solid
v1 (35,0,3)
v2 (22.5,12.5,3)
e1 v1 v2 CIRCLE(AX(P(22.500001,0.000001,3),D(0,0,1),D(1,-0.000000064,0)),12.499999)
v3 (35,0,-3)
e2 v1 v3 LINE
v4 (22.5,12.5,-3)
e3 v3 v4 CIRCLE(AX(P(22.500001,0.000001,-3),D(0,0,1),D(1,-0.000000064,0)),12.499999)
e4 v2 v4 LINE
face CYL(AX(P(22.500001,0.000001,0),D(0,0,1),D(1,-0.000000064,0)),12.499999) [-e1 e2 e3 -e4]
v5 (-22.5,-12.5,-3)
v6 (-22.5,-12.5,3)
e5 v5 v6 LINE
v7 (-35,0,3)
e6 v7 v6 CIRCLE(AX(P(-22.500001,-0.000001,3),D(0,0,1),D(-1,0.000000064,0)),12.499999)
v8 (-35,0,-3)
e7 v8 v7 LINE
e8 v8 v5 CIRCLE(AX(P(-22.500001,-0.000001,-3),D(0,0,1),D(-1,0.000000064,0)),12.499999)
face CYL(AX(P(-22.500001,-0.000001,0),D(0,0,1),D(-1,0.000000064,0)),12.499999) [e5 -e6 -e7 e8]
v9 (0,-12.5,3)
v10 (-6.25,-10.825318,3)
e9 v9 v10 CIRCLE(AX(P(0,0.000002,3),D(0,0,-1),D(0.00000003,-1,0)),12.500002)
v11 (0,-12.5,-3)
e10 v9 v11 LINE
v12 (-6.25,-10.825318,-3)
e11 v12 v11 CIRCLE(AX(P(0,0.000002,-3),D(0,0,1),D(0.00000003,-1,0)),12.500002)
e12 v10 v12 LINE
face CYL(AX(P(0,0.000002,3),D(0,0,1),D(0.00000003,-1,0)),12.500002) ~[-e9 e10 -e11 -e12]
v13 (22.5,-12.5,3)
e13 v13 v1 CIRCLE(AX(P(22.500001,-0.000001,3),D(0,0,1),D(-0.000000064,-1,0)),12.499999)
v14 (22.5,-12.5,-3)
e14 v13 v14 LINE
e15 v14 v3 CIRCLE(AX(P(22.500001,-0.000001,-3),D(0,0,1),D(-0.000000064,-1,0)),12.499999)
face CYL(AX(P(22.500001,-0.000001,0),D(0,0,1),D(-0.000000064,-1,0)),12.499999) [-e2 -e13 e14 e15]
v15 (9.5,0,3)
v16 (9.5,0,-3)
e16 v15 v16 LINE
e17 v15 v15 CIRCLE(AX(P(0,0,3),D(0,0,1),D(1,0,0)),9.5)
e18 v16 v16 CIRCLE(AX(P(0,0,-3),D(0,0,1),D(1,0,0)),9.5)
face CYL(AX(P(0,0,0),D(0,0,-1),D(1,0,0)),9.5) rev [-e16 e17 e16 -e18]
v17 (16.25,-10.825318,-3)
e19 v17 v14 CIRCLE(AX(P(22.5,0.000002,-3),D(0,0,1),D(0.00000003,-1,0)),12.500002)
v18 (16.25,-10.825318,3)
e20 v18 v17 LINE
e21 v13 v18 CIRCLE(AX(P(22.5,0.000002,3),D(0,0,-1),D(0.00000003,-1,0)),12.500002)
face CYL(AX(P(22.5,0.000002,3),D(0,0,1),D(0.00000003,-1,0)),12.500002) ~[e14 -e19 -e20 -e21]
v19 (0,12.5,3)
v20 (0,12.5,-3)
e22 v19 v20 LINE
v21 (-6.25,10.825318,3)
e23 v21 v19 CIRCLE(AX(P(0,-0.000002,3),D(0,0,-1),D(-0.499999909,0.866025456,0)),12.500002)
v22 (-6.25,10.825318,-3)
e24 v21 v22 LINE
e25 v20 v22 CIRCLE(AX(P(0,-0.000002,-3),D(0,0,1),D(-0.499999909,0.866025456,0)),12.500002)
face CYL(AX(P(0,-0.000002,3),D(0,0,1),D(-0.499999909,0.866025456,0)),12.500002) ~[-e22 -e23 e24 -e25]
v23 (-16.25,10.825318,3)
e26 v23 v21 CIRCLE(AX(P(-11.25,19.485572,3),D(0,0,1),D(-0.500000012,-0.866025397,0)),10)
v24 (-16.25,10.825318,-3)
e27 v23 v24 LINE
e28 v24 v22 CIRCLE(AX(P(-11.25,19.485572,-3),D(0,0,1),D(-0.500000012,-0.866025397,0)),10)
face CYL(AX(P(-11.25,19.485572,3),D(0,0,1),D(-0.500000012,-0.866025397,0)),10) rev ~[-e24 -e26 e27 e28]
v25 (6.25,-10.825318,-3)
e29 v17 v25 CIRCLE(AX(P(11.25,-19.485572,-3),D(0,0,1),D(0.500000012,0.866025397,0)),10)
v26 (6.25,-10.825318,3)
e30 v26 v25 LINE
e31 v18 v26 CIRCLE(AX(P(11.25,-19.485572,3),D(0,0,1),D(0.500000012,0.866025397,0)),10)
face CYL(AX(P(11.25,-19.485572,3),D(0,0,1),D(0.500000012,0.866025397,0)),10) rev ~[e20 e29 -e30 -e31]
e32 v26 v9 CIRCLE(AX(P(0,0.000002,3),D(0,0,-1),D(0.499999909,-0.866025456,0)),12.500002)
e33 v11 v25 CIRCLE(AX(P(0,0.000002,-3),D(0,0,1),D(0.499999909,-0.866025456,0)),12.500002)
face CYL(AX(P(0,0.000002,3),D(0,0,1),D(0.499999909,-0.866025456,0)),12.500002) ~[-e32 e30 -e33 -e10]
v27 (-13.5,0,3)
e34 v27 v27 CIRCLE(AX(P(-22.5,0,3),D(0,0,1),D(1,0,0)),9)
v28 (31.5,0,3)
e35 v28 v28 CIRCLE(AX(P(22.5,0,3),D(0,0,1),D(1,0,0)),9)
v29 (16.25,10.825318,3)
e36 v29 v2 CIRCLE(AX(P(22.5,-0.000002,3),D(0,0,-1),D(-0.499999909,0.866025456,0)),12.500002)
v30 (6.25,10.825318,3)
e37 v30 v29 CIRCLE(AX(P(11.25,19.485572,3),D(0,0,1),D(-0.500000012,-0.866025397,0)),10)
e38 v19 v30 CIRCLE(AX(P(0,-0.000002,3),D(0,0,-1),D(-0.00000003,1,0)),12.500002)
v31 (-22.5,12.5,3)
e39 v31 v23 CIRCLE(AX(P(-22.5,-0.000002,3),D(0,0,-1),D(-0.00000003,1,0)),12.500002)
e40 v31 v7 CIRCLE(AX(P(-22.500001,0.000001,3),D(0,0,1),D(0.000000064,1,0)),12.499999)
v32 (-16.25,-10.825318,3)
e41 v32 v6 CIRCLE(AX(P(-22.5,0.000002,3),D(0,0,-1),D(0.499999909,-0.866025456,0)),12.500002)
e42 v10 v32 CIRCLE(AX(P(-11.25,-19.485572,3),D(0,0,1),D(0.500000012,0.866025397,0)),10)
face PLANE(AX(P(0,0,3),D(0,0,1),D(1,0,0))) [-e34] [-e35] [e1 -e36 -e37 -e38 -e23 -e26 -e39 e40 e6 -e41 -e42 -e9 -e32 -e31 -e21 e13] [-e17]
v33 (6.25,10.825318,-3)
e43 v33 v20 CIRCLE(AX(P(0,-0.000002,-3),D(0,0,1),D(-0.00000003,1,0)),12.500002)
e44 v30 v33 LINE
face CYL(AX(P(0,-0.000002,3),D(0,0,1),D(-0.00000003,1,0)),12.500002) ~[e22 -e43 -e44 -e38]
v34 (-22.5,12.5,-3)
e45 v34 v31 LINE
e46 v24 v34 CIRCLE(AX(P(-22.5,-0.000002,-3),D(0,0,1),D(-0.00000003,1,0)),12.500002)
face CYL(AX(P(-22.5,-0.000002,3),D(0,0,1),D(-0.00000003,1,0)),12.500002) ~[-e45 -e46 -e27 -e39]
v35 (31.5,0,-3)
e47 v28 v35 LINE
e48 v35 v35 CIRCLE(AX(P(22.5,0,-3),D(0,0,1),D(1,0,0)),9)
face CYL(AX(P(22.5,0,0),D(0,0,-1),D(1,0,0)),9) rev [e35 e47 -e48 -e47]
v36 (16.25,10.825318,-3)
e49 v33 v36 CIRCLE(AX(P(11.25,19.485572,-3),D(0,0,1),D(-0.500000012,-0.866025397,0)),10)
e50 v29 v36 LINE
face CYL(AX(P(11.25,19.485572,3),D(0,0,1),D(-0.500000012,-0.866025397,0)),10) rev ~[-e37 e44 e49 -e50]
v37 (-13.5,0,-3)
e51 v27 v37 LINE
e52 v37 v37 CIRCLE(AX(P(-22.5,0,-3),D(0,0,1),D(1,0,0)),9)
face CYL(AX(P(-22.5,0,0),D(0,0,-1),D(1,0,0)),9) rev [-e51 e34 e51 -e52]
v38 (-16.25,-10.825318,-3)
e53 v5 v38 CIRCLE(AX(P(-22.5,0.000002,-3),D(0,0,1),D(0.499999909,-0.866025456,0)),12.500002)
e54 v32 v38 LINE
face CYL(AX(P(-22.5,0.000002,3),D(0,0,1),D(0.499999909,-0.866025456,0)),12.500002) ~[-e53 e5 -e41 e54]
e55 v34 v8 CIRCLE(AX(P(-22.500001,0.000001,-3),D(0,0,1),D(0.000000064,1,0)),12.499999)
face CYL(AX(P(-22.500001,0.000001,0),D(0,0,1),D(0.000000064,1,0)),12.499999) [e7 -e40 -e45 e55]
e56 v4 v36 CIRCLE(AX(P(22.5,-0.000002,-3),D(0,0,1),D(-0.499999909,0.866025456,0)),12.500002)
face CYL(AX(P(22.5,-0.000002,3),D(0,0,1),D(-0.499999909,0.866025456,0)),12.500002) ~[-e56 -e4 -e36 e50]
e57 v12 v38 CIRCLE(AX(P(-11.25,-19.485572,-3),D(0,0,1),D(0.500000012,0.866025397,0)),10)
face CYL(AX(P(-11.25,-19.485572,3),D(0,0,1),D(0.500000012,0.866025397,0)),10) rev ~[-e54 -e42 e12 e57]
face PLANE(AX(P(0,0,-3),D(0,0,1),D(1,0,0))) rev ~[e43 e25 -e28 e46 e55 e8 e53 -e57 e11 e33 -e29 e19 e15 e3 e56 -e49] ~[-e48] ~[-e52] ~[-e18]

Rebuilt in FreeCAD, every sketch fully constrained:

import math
import FreeCAD as App
import Part
import Sketcher

doc = App.newDocument("Part")
body = doc.addObject("PartDesign::Body", "Body")

# Sketch on XY plane
sketch1 = doc.addObject("Sketcher::SketchObject", "Sketch")
body.addObject(sketch1)
sketch1.AttachmentSupport = (doc.XY_Plane, [""])
sketch1.MapMode = "FlatFace"
sketch1.addGeometry([
    Part.LineSegment(App.Vector(22, 12, 0), App.Vector(-22, 12, 0)),  # 0
    Part.ArcOfCircle(Part.Circle(App.Vector(-23, 0, 0), App.Vector(0, 0, 1), 12), math.radians(90), math.radians(180)),  # 1
    Part.ArcOfCircle(Part.Circle(App.Vector(-23, 0, 0), App.Vector(0, 0, 1), 12), math.radians(180), math.radians(270)),  # 2
    Part.LineSegment(App.Vector(-22, -12, 0), App.Vector(22, -12, 0)),  # 3
    Part.ArcOfCircle(Part.Circle(App.Vector(23, 0, 0), App.Vector(0, 0, 1), 12), math.radians(-90), math.radians(0)),  # 4
    Part.ArcOfCircle(Part.Circle(App.Vector(23, 0, 0), App.Vector(0, 0, 1), 12), math.radians(0), math.radians(90)),  # 5
    Part.Circle(App.Vector(-22, 0, 0), App.Vector(0, 0, 1), 9),  # 6
    Part.Circle(App.Vector(0, 0, 0), App.Vector(0, 0, 1), 10),  # 7
    Part.Circle(App.Vector(22, 0, 0), App.Vector(0, 0, 1), 9),  # 8
], False)
sketch1.addConstraint([
    Sketcher.Constraint("Tangent", 0, 2, 1, 1),
    Sketcher.Constraint("Tangent", 1, 2, 2, 1),
    Sketcher.Constraint("Tangent", 2, 2, 3, 1),
    Sketcher.Constraint("Tangent", 3, 2, 4, 1),
    Sketcher.Constraint("Tangent", 4, 2, 5, 1),
    Sketcher.Constraint("Tangent", 5, 2, 0, 1),
    Sketcher.Constraint("Horizontal", 0),
    Sketcher.Constraint("Horizontal", 3),
    Sketcher.Constraint("Coincident", 7, 3, -1, 1),
    Sketcher.Constraint("Coincident", 6, 3, 1, 3),
    Sketcher.Constraint("Coincident", 8, 3, 4, 3),
    Sketcher.Constraint("Equal", 1, 2),
    Sketcher.Constraint("Equal", 2, 4),
    Sketcher.Constraint("Equal", 6, 8),
    Sketcher.Constraint("Symmetric", 1, 3, 4, 3, -1, 1),
    Sketcher.Constraint("PointOnObject", 1, 2, -1),
    Sketcher.Constraint("PointOnObject", 4, 2, -1),
    Sketcher.Constraint("Diameter", 6, 18.0),
    Sketcher.Constraint("Diameter", 7, 19.0),
    Sketcher.Constraint("Radius", 1, 12.499999),
    Sketcher.Constraint("DistanceX", 0, 2, 0, 1, 45.0),
])
pad1 = doc.addObject("PartDesign::Pad", "Pad")
body.addObject(pad1)
pad1.Profile = sketch1
pad1.Length = 6
pad1.Midplane = True

# Sketch on XY plane
sketch2 = doc.addObject("Sketcher::SketchObject", "Sketch001")
body.addObject(sketch2)
sketch2.AttachmentSupport = (doc.XY_Plane, [""])
sketch2.MapMode = "FlatFace"
sketch2.AttachmentOffset = App.Placement(App.Vector(0, 0, 3), App.Rotation())
sketch2.addGeometry([
    Part.LineSegment(App.Vector(22, 12, 0), App.Vector(0, 12, 0)),  # 0
    Part.ArcOfCircle(Part.Circle(App.Vector(0, 0, 0), App.Vector(0, 0, 1), 13), math.radians(60), math.radians(90)),  # 1
    Part.ArcOfCircle(Part.Circle(App.Vector(11, 19, 0), App.Vector(0, 0, 1), 10), math.radians(-120), math.radians(-60)),  # 2
    Part.ArcOfCircle(Part.Circle(App.Vector(22, 0, 0), App.Vector(0, 0, 1), 13), math.radians(90), math.radians(120)),  # 3
    Part.ArcOfCircle(Part.Circle(App.Vector(-22, 0, 0), App.Vector(0, 0, 1), 13), math.radians(60), math.radians(90)),  # 4
    Part.ArcOfCircle(Part.Circle(App.Vector(-11, 19, 0), App.Vector(0, 0, 1), 10), math.radians(-120), math.radians(-60)),  # 5
    Part.ArcOfCircle(Part.Circle(App.Vector(0, 0, 0), App.Vector(0, 0, 1), 13), math.radians(90), math.radians(120)),  # 6
    Part.LineSegment(App.Vector(0, 12, 0), App.Vector(-22, 12, 0)),  # 7
    Part.ArcOfCircle(Part.Circle(App.Vector(0, 0, 0), App.Vector(0, 0, 1), 13), math.radians(-90), math.radians(-60)),  # 8
    Part.LineSegment(App.Vector(0, -12, 0), App.Vector(22, -12, 0)),  # 9
    Part.ArcOfCircle(Part.Circle(App.Vector(22, 0, 0), App.Vector(0, 0, 1), 13), math.radians(-120), math.radians(-90)),  # 10
    Part.ArcOfCircle(Part.Circle(App.Vector(11, -19, 0), App.Vector(0, 0, 1), 10), math.radians(60), math.radians(120)),  # 11
    Part.ArcOfCircle(Part.Circle(App.Vector(-22, 0, 0), App.Vector(0, 0, 1), 13), math.radians(-90), math.radians(-60)),  # 12
    Part.LineSegment(App.Vector(-22, -12, 0), App.Vector(0, -12, 0)),  # 13
    Part.ArcOfCircle(Part.Circle(App.Vector(0, 0, 0), App.Vector(0, 0, 1), 13), math.radians(-120), math.radians(-90)),  # 14
    Part.ArcOfCircle(Part.Circle(App.Vector(-11, -19, 0), App.Vector(0, 0, 1), 10), math.radians(60), math.radians(120)),  # 15
], False)
sketch2.addConstraint([
    Sketcher.Constraint("Tangent", 0, 2, 1, 2),
    Sketcher.Constraint("Tangent", 1, 1, 2, 1),
    Sketcher.Constraint("Tangent", 2, 2, 3, 2),
    Sketcher.Constraint("Tangent", 3, 1, 0, 1),
    Sketcher.Constraint("Tangent", 4, 1, 5, 1),
    Sketcher.Constraint("Tangent", 5, 2, 6, 2),
    Sketcher.Constraint("Tangent", 6, 1, 7, 1),
    Sketcher.Constraint("Tangent", 7, 2, 4, 2),
    Sketcher.Constraint("Tangent", 8, 1, 9, 1),
    Sketcher.Constraint("Tangent", 9, 2, 10, 2),
    Sketcher.Constraint("Tangent", 10, 1, 11, 1),
    Sketcher.Constraint("Tangent", 11, 2, 8, 2),
    Sketcher.Constraint("Tangent", 12, 1, 13, 1),
    Sketcher.Constraint("Tangent", 13, 2, 14, 2),
    Sketcher.Constraint("Tangent", 14, 1, 15, 1),
    Sketcher.Constraint("Tangent", 15, 2, 12, 2),
    Sketcher.Constraint("Horizontal", 0),
    Sketcher.Constraint("Horizontal", 7),
    Sketcher.Constraint("Horizontal", 9),
    Sketcher.Constraint("Horizontal", 13),
    Sketcher.Constraint("Coincident", 1, 3, -1, 1),
    Sketcher.Constraint("Coincident", 6, 3, -1, 1),
    Sketcher.Constraint("Coincident", 8, 3, -1, 1),
    Sketcher.Constraint("Coincident", 14, 3, -1, 1),
    Sketcher.Constraint("Coincident", 10, 3, 3, 3),
    Sketcher.Constraint("Coincident", 12, 3, 4, 3),
    Sketcher.Constraint("Equal", 1, 3),
    Sketcher.Constraint("Equal", 3, 4),
    Sketcher.Constraint("Equal", 2, 5),
    Sketcher.Constraint("Equal", 4, 6),
    Sketcher.Constraint("Equal", 6, 8),
    Sketcher.Constraint("Equal", 5, 11),
    Sketcher.Constraint("Equal", 10, 12),
    Sketcher.Constraint("Equal", 11, 15),
    Sketcher.Constraint("Horizontal", 2, 3, 5, 3),
    Sketcher.Constraint("Radius", 2, 10.0),
    Sketcher.Constraint("Radius", 1, 12.500002),
    Sketcher.Constraint("DistanceX", 0, 2, 0, 1, 22.5),
])
pocket1 = doc.addObject("PartDesign::Pocket", "Pocket")
body.addObject(pocket1)
pocket1.Profile = sketch2
pocket1.Type = "ThroughAll"

doc.recompute()
